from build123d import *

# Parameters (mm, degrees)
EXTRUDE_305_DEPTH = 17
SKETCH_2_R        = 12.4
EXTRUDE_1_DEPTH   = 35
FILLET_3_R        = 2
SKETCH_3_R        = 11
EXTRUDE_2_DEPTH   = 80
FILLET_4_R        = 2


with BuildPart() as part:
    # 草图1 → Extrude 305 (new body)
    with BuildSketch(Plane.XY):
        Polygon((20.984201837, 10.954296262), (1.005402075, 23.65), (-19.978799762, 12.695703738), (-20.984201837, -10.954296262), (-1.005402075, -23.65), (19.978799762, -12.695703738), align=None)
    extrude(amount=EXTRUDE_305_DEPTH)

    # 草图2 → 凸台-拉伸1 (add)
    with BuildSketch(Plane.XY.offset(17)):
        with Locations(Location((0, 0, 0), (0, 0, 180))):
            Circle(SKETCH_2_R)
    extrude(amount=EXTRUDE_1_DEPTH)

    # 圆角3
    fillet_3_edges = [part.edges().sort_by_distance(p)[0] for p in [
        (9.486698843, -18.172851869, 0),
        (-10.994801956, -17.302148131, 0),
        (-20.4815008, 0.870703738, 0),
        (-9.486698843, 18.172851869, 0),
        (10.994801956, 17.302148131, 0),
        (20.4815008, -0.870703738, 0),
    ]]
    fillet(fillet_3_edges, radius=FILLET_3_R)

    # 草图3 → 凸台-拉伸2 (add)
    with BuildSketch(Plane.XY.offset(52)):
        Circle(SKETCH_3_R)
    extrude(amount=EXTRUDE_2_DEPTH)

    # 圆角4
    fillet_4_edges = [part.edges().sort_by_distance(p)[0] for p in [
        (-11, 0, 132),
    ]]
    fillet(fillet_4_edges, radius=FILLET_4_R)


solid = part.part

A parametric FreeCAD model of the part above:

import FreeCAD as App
import Part
import Sketcher
Q = App.Units.Quantity


def edges_at(feature, points):
    """Names of the edges that pass closest to the given points."""
    edges = feature.Shape.Edges
    near = lambda p: min(range(len(edges)), key=lambda i: edges[i].distToShape(Part.Vertex(*p))[0])
    return sorted({f"Edge{near(p) + 1}" for p in points})


def add_polygon(sketch, points):
    """Adds a closed chain of lines whose ends are joined by coincident constraints."""
    first, n = sketch.GeometryCount, len(points)
    for a, b in zip(points, points[1:] + points[:1]):
        sketch.addGeometry(Part.LineSegment(App.Vector(*a, 0), App.Vector(*b, 0)), False)
    for i in range(n):
        sketch.addConstraint(Sketcher.Constraint("Coincident", first + i, 2, first + (i + 1) % n, 1))

doc = App.newDocument("Part")
body = doc.addObject("PartDesign::Body", "Body")

sketch1 = body.newObject("Sketcher::SketchObject", "Sketch")
sketch1.AttachmentSupport = (doc.getObject("XY_Plane"), [""])
sketch1.MapMode = "FlatFace"
add_polygon(sketch1, [(21, 11), (1, 24), (-20, 13), (-21, -11), (-1, -24), (20, -13)])
sketch1.addConstraint([
    Sketcher.Constraint("Symmetric", 0, 2, 3, 2, -1, 1),
    Sketcher.Constraint("Symmetric", 1, 2, 4, 2, -1, 1),
    Sketcher.Constraint("Symmetric", 2, 2, 5, 2, -1, 1),
    Sketcher.Constraint("Equal", 0, 1),
    Sketcher.Constraint("Equal", 1, 2),
    Sketcher.Constraint("DistanceY", 3, 2, 0, 2, Q("47.3 mm")),
    Sketcher.Constraint("DistanceY", 2, 2, 1, 2, Q("23.65 mm")),
    Sketcher.Constraint("DistanceX", 2, 2, 4, 2, Q("40.963002 mm")),
    Sketcher.Constraint("DistanceX", 1, 2, -1, 1, Q("19.9788 mm")),
])
pad1 = body.newObject("PartDesign::Pad", "Pad")
pad1.Profile = sketch1
pad1.Length = 17

sketch2 = body.newObject("Sketcher::SketchObject", "Sketch001")
sketch2.AttachmentSupport = (doc.getObject("XY_Plane"), [""])
sketch2.MapMode = "FlatFace"
sketch2.AttachmentOffset = App.Placement(App.Vector(0, 0, 17), App.Rotation())
sketch2.addGeometry(Part.Circle(App.Vector(0, 0, 0), App.Vector(0, 0, 1), 12), False)
sketch2.addConstraint([
    Sketcher.Constraint("Coincident", 0, 3, -1, 1),
    Sketcher.Constraint("Diameter", 0, Q("24.8 mm")),
])
pad2 = body.newObject("PartDesign::Pad", "Pad001")
pad2.Profile = sketch2
pad2.Length = 35
doc.recompute()

fillet = body.newObject("PartDesign::Fillet", "Fillet")
fillet.Base = (pad2, edges_at(pad2, [
    (9.487, -18.173, 0),
    (-10.995, -17.302, 0),
    (-20.482, 0.871, 0),
    (-9.487, 18.173, 0),
    (10.995, 17.302, 0),
    (20.482, -0.871, 0),
]))
fillet.Radius = 2

sketch3 = body.newObject("Sketcher::SketchObject", "Sketch002")
sketch3.AttachmentSupport = (doc.getObject("XY_Plane"), [""])
sketch3.MapMode = "FlatFace"
sketch3.AttachmentOffset = App.Placement(App.Vector(0, 0, 52), App.Rotation())
sketch3.addGeometry(Part.Circle(App.Vector(0, 0, 0), App.Vector(0, 0, 1), 11), False)
sketch3.addConstraint([
    Sketcher.Constraint("Coincident", 0, 3, -1, 1),
    Sketcher.Constraint("Diameter", 0, Q("22 mm")),
])
pad3 = body.newObject("PartDesign::Pad", "Pad002")
pad3.Profile = sketch3
pad3.Length = 80
doc.recompute()

fillet2 = body.newObject("PartDesign::Fillet", "Fillet001")
fillet2.Base = (pad3, edges_at(pad3, [(-11, 0, 132)]))
fillet2.Radius = 2

doc.recompute()
